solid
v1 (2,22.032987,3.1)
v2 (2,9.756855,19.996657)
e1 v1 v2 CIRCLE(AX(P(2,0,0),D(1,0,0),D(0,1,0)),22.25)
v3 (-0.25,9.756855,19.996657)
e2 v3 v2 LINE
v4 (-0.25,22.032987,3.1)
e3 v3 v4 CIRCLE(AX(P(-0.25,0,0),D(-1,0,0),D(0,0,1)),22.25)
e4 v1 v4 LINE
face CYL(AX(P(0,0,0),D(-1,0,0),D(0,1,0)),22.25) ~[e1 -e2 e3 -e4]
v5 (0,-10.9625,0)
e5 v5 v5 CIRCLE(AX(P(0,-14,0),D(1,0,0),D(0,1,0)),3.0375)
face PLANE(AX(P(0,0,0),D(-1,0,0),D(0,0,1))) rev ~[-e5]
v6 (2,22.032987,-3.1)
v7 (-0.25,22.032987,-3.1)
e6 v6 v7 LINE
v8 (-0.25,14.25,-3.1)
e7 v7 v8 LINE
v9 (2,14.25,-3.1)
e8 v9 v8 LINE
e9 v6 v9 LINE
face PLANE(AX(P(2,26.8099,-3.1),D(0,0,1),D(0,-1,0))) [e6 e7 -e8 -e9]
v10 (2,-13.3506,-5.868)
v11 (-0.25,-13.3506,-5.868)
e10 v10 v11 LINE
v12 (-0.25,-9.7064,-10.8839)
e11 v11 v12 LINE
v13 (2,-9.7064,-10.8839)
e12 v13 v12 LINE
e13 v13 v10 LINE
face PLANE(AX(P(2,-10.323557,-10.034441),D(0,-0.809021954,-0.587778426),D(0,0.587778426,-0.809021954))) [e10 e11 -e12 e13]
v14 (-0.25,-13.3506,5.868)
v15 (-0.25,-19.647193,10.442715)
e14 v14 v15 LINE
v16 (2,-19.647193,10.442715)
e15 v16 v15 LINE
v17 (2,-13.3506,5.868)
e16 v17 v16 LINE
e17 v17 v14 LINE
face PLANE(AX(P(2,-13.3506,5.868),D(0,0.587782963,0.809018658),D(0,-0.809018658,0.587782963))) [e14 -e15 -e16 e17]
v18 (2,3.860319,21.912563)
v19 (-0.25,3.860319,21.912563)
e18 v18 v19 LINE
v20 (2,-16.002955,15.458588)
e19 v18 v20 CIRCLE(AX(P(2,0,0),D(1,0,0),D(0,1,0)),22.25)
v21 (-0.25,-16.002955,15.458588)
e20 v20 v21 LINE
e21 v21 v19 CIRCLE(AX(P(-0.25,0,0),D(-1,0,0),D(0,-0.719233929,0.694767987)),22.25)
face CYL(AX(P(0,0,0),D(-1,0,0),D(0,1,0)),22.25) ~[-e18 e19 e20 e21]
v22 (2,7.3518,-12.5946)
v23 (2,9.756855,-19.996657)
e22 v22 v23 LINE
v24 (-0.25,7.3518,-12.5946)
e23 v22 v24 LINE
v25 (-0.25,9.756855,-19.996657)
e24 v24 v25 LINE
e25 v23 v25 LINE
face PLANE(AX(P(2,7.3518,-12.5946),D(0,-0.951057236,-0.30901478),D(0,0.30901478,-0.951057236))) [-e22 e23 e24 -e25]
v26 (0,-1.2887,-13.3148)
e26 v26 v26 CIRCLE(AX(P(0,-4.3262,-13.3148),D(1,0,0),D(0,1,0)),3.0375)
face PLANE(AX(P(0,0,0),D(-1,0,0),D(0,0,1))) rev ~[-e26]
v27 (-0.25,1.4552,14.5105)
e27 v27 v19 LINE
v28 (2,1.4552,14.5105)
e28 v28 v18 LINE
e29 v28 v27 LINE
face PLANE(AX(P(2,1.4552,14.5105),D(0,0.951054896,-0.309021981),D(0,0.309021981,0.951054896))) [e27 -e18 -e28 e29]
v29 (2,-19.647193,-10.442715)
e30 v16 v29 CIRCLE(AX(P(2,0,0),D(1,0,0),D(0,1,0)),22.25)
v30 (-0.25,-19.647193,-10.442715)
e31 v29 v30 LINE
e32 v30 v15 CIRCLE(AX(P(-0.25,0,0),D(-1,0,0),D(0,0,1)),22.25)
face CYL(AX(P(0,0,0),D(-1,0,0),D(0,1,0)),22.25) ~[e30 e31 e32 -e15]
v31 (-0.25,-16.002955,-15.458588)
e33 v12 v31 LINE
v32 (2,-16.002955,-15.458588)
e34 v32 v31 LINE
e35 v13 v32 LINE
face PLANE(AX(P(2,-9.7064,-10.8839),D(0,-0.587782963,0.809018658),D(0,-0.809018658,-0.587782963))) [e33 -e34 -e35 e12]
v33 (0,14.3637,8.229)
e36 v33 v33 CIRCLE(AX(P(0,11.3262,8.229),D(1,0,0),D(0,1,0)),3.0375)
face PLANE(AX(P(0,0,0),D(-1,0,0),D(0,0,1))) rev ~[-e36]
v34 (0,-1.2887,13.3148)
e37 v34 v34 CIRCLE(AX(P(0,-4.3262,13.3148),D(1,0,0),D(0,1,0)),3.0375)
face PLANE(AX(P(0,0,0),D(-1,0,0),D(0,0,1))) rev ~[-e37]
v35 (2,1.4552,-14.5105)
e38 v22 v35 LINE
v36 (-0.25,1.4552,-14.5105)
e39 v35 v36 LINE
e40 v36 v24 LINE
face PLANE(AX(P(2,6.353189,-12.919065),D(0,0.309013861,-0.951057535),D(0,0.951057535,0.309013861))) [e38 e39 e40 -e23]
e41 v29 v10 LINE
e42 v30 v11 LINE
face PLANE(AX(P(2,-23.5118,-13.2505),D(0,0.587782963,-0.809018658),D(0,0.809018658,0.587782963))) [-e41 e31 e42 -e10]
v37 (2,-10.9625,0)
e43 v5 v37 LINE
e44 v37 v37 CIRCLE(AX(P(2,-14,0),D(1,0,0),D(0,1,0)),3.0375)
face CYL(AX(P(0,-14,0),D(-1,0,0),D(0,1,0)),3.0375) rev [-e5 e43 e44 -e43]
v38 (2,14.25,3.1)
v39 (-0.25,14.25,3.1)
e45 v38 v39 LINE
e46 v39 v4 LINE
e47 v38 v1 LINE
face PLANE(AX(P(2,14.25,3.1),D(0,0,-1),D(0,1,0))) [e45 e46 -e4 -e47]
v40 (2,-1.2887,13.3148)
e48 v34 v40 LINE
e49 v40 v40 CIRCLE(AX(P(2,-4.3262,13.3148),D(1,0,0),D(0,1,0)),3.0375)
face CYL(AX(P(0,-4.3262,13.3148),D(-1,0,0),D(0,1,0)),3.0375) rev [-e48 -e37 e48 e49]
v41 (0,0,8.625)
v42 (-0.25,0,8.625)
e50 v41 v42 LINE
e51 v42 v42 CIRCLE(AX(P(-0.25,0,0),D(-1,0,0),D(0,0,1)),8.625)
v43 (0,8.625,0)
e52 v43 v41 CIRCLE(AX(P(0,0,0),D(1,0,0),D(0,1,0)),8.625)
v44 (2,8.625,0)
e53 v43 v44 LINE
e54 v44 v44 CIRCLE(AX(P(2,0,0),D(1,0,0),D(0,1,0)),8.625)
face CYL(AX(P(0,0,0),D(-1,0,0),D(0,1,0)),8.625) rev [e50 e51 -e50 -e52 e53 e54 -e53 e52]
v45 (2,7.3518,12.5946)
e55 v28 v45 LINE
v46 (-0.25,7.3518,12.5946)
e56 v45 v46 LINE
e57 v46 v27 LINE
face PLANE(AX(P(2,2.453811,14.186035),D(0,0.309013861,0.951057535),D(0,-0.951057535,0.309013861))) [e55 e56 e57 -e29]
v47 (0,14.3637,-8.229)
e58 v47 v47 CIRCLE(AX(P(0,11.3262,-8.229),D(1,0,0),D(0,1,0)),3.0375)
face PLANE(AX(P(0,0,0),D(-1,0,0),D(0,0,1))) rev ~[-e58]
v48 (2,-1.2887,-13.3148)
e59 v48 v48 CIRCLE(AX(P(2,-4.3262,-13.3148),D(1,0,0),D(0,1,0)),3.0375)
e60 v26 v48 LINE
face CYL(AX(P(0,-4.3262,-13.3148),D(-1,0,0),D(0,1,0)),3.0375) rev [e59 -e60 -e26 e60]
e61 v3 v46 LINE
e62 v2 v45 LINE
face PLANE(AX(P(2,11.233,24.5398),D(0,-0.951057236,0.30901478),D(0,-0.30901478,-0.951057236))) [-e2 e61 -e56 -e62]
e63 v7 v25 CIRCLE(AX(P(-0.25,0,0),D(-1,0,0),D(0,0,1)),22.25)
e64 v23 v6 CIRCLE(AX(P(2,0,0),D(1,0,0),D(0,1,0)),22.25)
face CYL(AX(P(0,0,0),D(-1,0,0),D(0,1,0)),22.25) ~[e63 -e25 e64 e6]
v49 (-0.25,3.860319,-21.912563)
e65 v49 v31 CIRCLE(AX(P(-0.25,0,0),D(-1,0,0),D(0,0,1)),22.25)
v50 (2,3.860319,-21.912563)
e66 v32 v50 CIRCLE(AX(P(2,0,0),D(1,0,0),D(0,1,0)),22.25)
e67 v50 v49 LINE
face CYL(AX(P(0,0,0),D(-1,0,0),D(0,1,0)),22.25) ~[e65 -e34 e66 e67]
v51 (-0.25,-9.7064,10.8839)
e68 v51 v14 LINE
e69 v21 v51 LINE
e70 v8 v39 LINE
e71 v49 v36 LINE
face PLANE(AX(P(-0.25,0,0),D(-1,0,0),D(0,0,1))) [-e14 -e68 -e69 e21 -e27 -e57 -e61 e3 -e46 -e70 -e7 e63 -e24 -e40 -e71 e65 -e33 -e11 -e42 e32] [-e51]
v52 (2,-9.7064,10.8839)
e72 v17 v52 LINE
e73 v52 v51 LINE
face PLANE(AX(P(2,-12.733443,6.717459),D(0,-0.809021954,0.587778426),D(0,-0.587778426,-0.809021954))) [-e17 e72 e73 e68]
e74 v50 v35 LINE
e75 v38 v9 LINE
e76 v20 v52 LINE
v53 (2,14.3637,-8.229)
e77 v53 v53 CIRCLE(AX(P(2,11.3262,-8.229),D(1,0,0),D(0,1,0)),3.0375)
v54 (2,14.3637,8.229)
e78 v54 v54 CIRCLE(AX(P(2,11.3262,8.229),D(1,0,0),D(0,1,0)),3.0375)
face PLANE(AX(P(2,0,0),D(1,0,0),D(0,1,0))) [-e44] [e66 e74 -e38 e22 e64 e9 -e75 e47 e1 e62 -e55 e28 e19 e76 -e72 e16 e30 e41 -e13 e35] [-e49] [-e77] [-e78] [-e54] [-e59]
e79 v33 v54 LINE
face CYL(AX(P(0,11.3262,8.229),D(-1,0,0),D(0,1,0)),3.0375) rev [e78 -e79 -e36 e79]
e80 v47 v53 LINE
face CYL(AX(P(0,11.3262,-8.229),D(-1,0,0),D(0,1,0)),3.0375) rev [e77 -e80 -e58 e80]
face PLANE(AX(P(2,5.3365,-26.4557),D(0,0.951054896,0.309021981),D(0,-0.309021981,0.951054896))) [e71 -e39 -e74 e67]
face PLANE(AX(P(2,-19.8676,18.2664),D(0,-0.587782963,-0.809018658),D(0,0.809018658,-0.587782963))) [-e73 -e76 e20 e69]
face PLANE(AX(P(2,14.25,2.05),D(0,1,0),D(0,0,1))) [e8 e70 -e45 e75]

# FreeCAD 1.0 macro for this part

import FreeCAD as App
import Part
import Sketcher
Q = App.Units.Quantity

doc = App.newDocument("Part")
body = doc.addObject("PartDesign::Body", "Body")

# Sketch on YZ plane
sketch1 = body.newObject("Sketcher::SketchObject", "Sketch")
sketch1.AttachmentSupport = (doc.getObject("YZ_Plane"), [""])
sketch1.MapMode = "FlatFace"
sketch1.addGeometry([
    Part.Circle(App.Vector(0, 0, 0), App.Vector(0, 0, 1), 22.25),  # 0
    Part.Circle(App.Vector(-4.3262, -13.3148, 0), App.Vector(0, 0, 1), 3.0375),  # 1
    Part.Circle(App.Vector(11.3262, -8.229, 0), App.Vector(0, 0, 1), 3.0375),  # 2
    Part.Circle(App.Vector(-14, 0, 0), App.Vector(0, 0, 1), 3.0375),  # 3
    Part.Circle(App.Vector(-4.3262, 13.3148, 0), App.Vector(0, 0, 1), 3.0375),  # 4
    Part.Circle(App.Vector(0, 0, 0), App.Vector(0, 0, 1), 8.625),  # 5
    Part.Circle(App.Vector(11.3262, 8.229, 0), App.Vector(0, 0, 1), 3.0375),  # 6
], False)
sketch1.addConstraint([
    Sketcher.Constraint("Coincident", 0, 3, -1, 1),
    Sketcher.Constraint("Coincident", 5, 3, -1, 1),
    Sketcher.Constraint("Equal", 1, 2),
    Sketcher.Constraint("Equal", 2, 3),
    Sketcher.Constraint("Equal", 3, 4),
    Sketcher.Constraint("Equal", 4, 6),
    Sketcher.Constraint("Symmetric", 1, 3, 4, 3, -1),
    Sketcher.Constraint("Symmetric", 2, 3, 6, 3, -1),
    Sketcher.Constraint("PointOnObject", 3, 3, -1),
    Sketcher.Constraint("Diameter", 0, Q("44.5 mm")),
    Sketcher.Constraint("Diameter", 5, Q("17.25 mm")),
    Sketcher.Constraint("Diameter", 1, Q("6.075 mm")),
    Sketcher.Constraint("DistanceX", 3, 3, -1, 1, Q("14 mm")),
    Sketcher.Constraint("DistanceY", 2, 3, -1, 1, Q("8.229 mm")),
    Sketcher.Constraint("DistanceX", 1, 3, -1, 1, Q("4.3262 mm")),
    Sketcher.Constraint("DistanceY", 1, 3, -1, 1, Q("13.3148 mm")),
    Sketcher.Constraint("DistanceX", -1, 1, 2, 3, Q("11.3262 mm")),
])
pad1 = body.newObject("PartDesign::Pad", "Pad")
pad1.Profile = sketch1
pad1.Length = 2

# Sketch on YZ plane
sketch2 = body.newObject("Sketcher::SketchObject", "Sketch001")
sketch2.AttachmentSupport = (doc.getObject("YZ_Plane"), [""])
sketch2.MapMode = "FlatFace"
sketch2.addGeometry([
    Part.Circle(App.Vector(0, 0, 0), App.Vector(0, 0, 1), 22.25),
    Part.Circle(App.Vector(0, 0, 0), App.Vector(0, 0, 1), 8.625),
], False)
sketch2.addConstraint([
    Sketcher.Constraint("Coincident", 0, 3, -1, 1),
    Sketcher.Constraint("Coincident", 1, 3, -1, 1),
    Sketcher.Constraint("Diameter", 0, Q("44.5 mm")),
    Sketcher.Constraint("Diameter", 1, Q("17.25 mm")),
])
pad2 = body.newObject("PartDesign::Pad", "Pad001")
pad2.Profile = sketch2
pad2.Length = 0.25
pad2.Reversed = True

# Sketch on YZ plane
sketch3 = body.newObject("Sketcher::SketchObject", "Sketch002")
sketch3.AttachmentSupport = (doc.getObject("YZ_Plane"), [""])
sketch3.MapMode = "FlatFace"
sketch3.AttachmentOffset = App.Placement(App.Vector(0, 0, 2), App.Rotation())
sketch3.addGeometry([
    Part.LineSegment(App.Vector(26.8099, 3.1, 0), App.Vector(14.25, 3.1, 0)),  # 0
    Part.LineSegment(App.Vector(14.25, 3.1, 0), App.Vector(14.25, -3.1, 0)),  # 1
    Part.LineSegment(App.Vector(14.25, -3.1, 0), App.Vector(26.8099, -3.1, 0)),  # 2
    Part.LineSegment(App.Vector(26.8099, -3.1, 0), App.Vector(26.8099, 3.1, 0)),  # 3
    Part.LineSegment(App.Vector(5.3365, 26.4557, 0), App.Vector(1.4552, 14.5105, 0)),  # 4
    Part.LineSegment(App.Vector(1.4552, 14.5105, 0), App.Vector(7.3518, 12.5946, 0)),  # 5
    Part.LineSegment(App.Vector(7.3518, 12.5946, 0), App.Vector(11.233, 24.5398, 0)),  # 6
    Part.LineSegment(App.Vector(11.233, 24.5398, 0), App.Vector(5.3365, 26.4557, 0)),  # 7
    Part.LineSegment(App.Vector(-23.5118, 13.2505, 0), App.Vector(-13.3506, 5.868, 0)),  # 8
    Part.LineSegment(App.Vector(-13.3506, 5.868, 0), App.Vector(-9.7064, 10.8839, 0)),  # 9
    Part.LineSegment(App.Vector(-9.7064, 10.8839, 0), App.Vector(-19.8676, 18.2664, 0)),  # 10
    Part.LineSegment(App.Vector(-19.8676, 18.2664, 0), App.Vector(-23.5118, 13.2505, 0)),  # 11
    Part.LineSegment(App.Vector(-19.8676, -18.2664, 0), App.Vector(-9.7064, -10.8839, 0)),  # 12
    Part.LineSegment(App.Vector(-9.7064, -10.8839, 0), App.Vector(-13.3506, -5.868, 0)),  # 13
    Part.LineSegment(App.Vector(-13.3506, -5.868, 0), App.Vector(-23.5118, -13.2505, 0)),  # 14
    Part.LineSegment(App.Vector(-23.5118, -13.2505, 0), App.Vector(-19.8676, -18.2664, 0)),  # 15
    Part.LineSegment(App.Vector(11.233, -24.5398, 0), App.Vector(7.3518, -12.5946, 0)),  # 16
    Part.LineSegment(App.Vector(7.3518, -12.5946, 0), App.Vector(1.4552, -14.5105, 0)),  # 17
    Part.LineSegment(App.Vector(1.4552, -14.5105, 0), App.Vector(5.3365, -26.4557, 0)),  # 18
    Part.LineSegment(App.Vector(5.3365, -26.4557, 0), App.Vector(11.233, -24.5398, 0)),  # 19
], False)
sketch3.addConstraint([
    Sketcher.Constraint("Coincident", 0, 2, 1, 1),
    Sketcher.Constraint("Coincident", 1, 2, 2, 1),
    Sketcher.Constraint("Coincident", 2, 2, 3, 1),
    Sketcher.Constraint("Coincident", 3, 2, 0, 1),
    Sketcher.Constraint("Coincident", 4, 2, 5, 1),
    Sketcher.Constraint("Coincident", 5, 2, 6, 1),
    Sketcher.Constraint("Coincident", 6, 2, 7, 1),
    Sketcher.Constraint("Coincident", 7, 2, 4, 1),
    Sketcher.Constraint("Coincident", 8, 2, 9, 1),
    Sketcher.Constraint("Coincident", 9, 2, 10, 1),
    Sketcher.Constraint("Coincident", 10, 2, 11, 1),
    Sketcher.Constraint("Coincident", 11, 2, 8, 1),
    Sketcher.Constraint("Coincident", 12, 2, 13, 1),
    Sketcher.Constraint("Coincident", 13, 2, 14, 1),
    Sketcher.Constraint("Coincident", 14, 2, 15, 1),
    Sketcher.Constraint("Coincident", 15, 2, 12, 1),
    Sketcher.Constraint("Coincident", 16, 2, 17, 1),
    Sketcher.Constraint("Coincident", 17, 2, 18, 1),
    Sketcher.Constraint("Coincident", 18, 2, 19, 1),
    Sketcher.Constraint("Coincident", 19, 2, 16, 1),
    Sketcher.Constraint("Horizontal", 0),
    Sketcher.Constraint("Vertical", 1),
    Sketcher.Constraint("Horizontal", 2),
    Sketcher.Constraint("Vertical", 3),
    Sketcher.Constraint("Symmetric", 9, 2, 12, 2, -1),
    Sketcher.Constraint("Symmetric", 8, 2, 13, 2, -1),
    Sketcher.Constraint("Symmetric", 11, 2, 14, 2, -1),
    Sketcher.Constraint("Symmetric", 10, 2, 15, 2, -1),
    Sketcher.Constraint("Symmetric", 5, 2, 16, 2, -1),
    Sketcher.Constraint("Symmetric", 4, 2, 17, 2, -1),
    Sketcher.Constraint("Symmetric", 7, 2, 18, 2, -1),
    Sketcher.Constraint("Symmetric", 6, 2, 19, 2, -1),
    Sketcher.Constraint("Perpendicular", 4, 5),
    Sketcher.Constraint("Perpendicular", 5, 6),
    Sketcher.Constraint("Perpendicular", 6, 7),
    Sketcher.Constraint("Perpendicular", 8, 9),
    Sketcher.Constraint("Perpendicular", 9, 10),
    Sketcher.Constraint("Perpendicular", 10, 11),
    Sketcher.Constraint("Equal", 6, 8),
    Sketcher.Constraint("Equal", 7, 9),
    Sketcher.Constraint("DistanceY", 1, 2, 1, 1, Q("6.2 mm")),
    Sketcher.Constraint("Distance", 5, Q("6.2 mm")),
    Sketcher.Constraint("DistanceY", -1, 1, 0, 2, Q("3.1 mm")),
    Sketcher.Constraint("Angle", 4, Q("-108.0003 deg")),
    Sketcher.Constraint("Angle", 8, Q("-35.9998 deg")),
    Sketcher.Constraint("DistanceX", 0, 2, 0, 1, Q("12.56 mm")),
    Sketcher.Constraint("Distance", 4, Q("12.56 mm")),
    Sketcher.Constraint("DistanceX", -1, 1, 0, 2, Q("14.25 mm")),
    Sketcher.Constraint("DistanceY", 11, 2, 4, 2, Q("1.26 mm")),
    Sketcher.Constraint("DistanceX", -1, 1, 6, 2, Q("11.233 mm")),
    Sketcher.Constraint("DistanceY", -1, 1, 8, 2, Q("5.868 mm")),
    Sketcher.Constraint("DistanceX", 8, 2, 7, 2, Q("18.687 mm")),
])
pocket1 = body.newObject("PartDesign::Pocket", "Pocket")
pocket1.Profile = sketch3
pocket1.Length = 2.25

doc.recompute()
